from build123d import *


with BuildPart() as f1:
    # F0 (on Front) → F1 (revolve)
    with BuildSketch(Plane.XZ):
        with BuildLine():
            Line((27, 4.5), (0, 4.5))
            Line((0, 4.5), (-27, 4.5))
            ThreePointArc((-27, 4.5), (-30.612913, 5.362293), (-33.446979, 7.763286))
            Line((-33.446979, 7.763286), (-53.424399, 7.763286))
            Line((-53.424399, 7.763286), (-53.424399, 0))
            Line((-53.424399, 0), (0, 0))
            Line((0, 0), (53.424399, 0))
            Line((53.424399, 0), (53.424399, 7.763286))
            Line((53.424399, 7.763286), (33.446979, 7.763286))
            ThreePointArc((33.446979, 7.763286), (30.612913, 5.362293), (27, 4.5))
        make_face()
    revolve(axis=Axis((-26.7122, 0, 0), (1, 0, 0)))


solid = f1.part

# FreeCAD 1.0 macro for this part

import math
import FreeCAD as App
import Part
import Sketcher
Q = App.Units.Quantity

doc = App.newDocument("Part")
body = doc.addObject("PartDesign::Body", "Body")

sketch1 = body.newObject("Sketcher::SketchObject", "Sketch")
sketch1.AttachmentSupport = (doc.getObject("XZ_Plane"), [""])
sketch1.MapMode = "FlatFace"
sketch1.addGeometry(Part.LineSegment(App.Vector(27, 4.5, 0), App.Vector(-27, 4.5, 0)), False)
sketch1.addGeometry(Part.ArcOfCircle(Part.Circle(App.Vector(-27.000001, 12.499999, 0), App.Vector(0, 0, 1), 7.999999), math.radians(-143.694597), math.radians(-89.999996)), False)
sketch1.addGeometry(Part.LineSegment(App.Vector(-33.446979, 7.763286, 0), App.Vector(-53.424399, 7.763286, 0)), False)
sketch1.addGeometry(Part.LineSegment(App.Vector(-53.424399, 7.763286, 0), App.Vector(-53.424399, 0, 0)), False)
sketch1.addGeometry(Part.LineSegment(App.Vector(-53.424399, 0, 0), App.Vector(53.424399, 0, 0)), False)
sketch1.addGeometry(Part.LineSegment(App.Vector(53.424399, 0, 0), App.Vector(53.424399, 7.763286, 0)), False)
sketch1.addGeometry(Part.LineSegment(App.Vector(53.424399, 7.763286, 0), App.Vector(33.446979, 7.763286, 0)), False)
sketch1.addGeometry(Part.ArcOfCircle(Part.Circle(App.Vector(27.000001, 12.499999, 0), App.Vector(0, 0, 1), 7.999999), math.radians(-90.000004), math.radians(-36.305403)), False)
sketch1.addConstraint(Sketcher.Constraint("Tangent", 0, 2, 1, 2))
sketch1.addConstraint(Sketcher.Constraint("Coincident", 1, 1, 2, 1))
sketch1.addConstraint(Sketcher.Constraint("Coincident", 2, 2, 3, 1))
sketch1.addConstraint(Sketcher.Constraint("Coincident", 3, 2, 4, 1))
sketch1.addConstraint(Sketcher.Constraint("Coincident", 4, 2, 5, 1))
sketch1.addConstraint(Sketcher.Constraint("Coincident", 5, 2, 6, 1))
sketch1.addConstraint(Sketcher.Constraint("Coincident", 6, 2, 7, 2))
sketch1.addConstraint(Sketcher.Constraint("Tangent", 7, 1, 0, 1))
sketch1.addConstraint(Sketcher.Constraint("Horizontal", 0))
sketch1.addConstraint(Sketcher.Constraint("Horizontal", 2))
sketch1.addConstraint(Sketcher.Constraint("Vertical", 3))
sketch1.addConstraint(Sketcher.Constraint("Horizontal", 4))
sketch1.addConstraint(Sketcher.Constraint("Vertical", 5))
sketch1.addConstraint(Sketcher.Constraint("Horizontal", 6))
sketch1.addConstraint(Sketcher.Constraint("Equal", 1, 7))
sketch1.addConstraint(Sketcher.Constraint("Symmetric", 3, 2, 4, 2, -1, 1))
sketch1.addConstraint(Sketcher.Constraint("Symmetric", 1, 1, 6, 2, -2))
sketch1.addConstraint(Sketcher.Constraint("Radius", 1, Q("7.999999 mm")))
sketch1.addConstraint(Sketcher.Constraint("DistanceX", 0, 2, 0, 1, Q("54 mm")))
sketch1.addConstraint(Sketcher.Constraint("DistanceY", -1, 1, 1, 3, Q("12.499999 mm")))
sketch1.addConstraint(Sketcher.Constraint("DistanceX", 4, 1, 4, 2, Q("106.848798 mm")))
sketch1.addConstraint(Sketcher.Constraint("DistanceX", 2, 2, 2, 1, Q("19.97742 mm")))
revolution = body.newObject("PartDesign::Revolution", "Revolution")
revolution.Profile = sketch1
revolution.ReferenceAxis = (sketch1, ["H_Axis"])
revolution.Angle = 360

doc.recompute()
